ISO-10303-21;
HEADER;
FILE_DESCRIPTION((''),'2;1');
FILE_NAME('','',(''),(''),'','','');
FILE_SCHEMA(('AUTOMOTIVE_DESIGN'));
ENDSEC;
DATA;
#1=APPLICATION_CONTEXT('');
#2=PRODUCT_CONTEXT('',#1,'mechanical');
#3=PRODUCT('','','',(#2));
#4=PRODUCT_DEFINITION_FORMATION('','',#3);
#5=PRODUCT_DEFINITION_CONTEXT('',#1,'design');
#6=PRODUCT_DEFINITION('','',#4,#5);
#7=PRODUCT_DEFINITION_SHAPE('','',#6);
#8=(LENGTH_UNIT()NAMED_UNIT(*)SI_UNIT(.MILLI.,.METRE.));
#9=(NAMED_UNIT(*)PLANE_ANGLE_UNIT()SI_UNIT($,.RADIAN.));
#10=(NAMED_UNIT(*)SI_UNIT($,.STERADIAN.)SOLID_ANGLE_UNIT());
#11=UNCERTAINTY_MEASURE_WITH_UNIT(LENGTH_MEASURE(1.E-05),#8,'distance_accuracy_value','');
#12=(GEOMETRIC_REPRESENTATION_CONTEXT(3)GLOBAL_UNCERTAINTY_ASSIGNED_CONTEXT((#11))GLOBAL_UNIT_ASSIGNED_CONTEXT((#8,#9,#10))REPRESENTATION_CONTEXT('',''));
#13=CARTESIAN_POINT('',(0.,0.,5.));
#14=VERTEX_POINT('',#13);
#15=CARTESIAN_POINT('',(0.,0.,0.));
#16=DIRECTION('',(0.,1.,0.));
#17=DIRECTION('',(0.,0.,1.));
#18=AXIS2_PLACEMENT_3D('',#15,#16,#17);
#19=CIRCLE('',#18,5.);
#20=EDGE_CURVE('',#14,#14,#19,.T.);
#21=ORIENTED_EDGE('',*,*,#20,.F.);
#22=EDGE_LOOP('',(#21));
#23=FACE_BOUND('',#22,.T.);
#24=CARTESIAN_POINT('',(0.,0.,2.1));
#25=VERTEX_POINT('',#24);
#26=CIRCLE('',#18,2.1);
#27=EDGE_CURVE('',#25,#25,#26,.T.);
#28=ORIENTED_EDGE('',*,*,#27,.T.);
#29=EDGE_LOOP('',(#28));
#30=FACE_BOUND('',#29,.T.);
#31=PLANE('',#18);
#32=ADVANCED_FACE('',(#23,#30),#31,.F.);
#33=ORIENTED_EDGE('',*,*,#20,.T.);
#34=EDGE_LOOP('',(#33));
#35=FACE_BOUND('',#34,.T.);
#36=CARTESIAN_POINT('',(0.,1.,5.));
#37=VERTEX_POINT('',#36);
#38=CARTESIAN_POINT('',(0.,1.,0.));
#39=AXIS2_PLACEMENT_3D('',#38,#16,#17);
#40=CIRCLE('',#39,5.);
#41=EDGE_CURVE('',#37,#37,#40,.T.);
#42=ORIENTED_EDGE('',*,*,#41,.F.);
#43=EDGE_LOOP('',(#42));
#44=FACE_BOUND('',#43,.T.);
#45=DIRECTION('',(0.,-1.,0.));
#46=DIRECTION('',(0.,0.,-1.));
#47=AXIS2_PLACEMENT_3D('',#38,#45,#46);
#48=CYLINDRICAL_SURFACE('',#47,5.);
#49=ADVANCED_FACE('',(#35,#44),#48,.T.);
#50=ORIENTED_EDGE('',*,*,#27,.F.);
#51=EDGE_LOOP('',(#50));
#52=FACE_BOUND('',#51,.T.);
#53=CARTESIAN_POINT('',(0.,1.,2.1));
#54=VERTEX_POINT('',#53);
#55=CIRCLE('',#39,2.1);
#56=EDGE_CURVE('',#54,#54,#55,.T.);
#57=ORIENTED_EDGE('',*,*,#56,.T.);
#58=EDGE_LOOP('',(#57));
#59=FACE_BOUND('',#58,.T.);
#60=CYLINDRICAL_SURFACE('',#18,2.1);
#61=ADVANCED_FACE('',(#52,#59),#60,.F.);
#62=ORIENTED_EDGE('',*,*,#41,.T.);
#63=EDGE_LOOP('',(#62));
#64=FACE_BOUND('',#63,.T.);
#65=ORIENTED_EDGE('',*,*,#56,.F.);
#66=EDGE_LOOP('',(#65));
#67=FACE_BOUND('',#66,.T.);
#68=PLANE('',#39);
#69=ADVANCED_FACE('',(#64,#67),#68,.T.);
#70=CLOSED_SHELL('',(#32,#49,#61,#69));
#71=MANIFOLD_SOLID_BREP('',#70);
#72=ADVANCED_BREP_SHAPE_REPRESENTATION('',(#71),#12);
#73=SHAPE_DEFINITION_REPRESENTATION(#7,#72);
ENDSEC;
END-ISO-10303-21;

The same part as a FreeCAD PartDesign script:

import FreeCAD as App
import Part
import Sketcher

doc = App.newDocument("Part")
params = doc.addObject("Spreadsheet::Sheet", "Params")
for row, (alias, value) in enumerate([
    ("sketch1_diameter", "10 mm"),
    ("pad1_length", "1 mm"),
    ("sketch2_diameter", "4.2 mm"),
], start=1):
    params.set(f"A{row}", alias)
    params.set(f"B{row}", "=" + value)
    params.setAlias(f"B{row}", alias)

body = doc.addObject("PartDesign::Body", "Body")

# Sketch on XZ plane
sketch1 = doc.addObject("Sketcher::SketchObject", "Sketch")
body.addObject(sketch1)
sketch1.AttachmentSupport = (doc.XZ_Plane, [""])
sketch1.MapMode = "FlatFace"
sketch1.addGeometry(Part.Circle(App.Vector(0, 0, 0), App.Vector(0, 0, 1), 5), False)
sketch1.addConstraint([
    Sketcher.Constraint("Coincident", 0, 3, -1, 1),
    Sketcher.Constraint("Diameter", 0, 10.0),
])
sketch1.setExpression("Constraints[1]", "Params.sketch1_diameter")
pad1 = doc.addObject("PartDesign::Pad", "Pad")
body.addObject(pad1)
pad1.Profile = sketch1
pad1.setExpression("Length", "Params.pad1_length")
pad1.Reversed = True

# Sketch on XZ plane
sketch2 = doc.addObject("Sketcher::SketchObject", "Sketch001")
body.addObject(sketch2)
sketch2.AttachmentSupport = (doc.XZ_Plane, [""])
sketch2.MapMode = "FlatFace"
sketch2.AttachmentOffset = App.Placement(App.Vector(0, 0, -1), App.Rotation())
sketch2.addGeometry(Part.Circle(App.Vector(0, 0, 0), App.Vector(0, 0, 1), 2.1), False)
sketch2.addConstraint([
    Sketcher.Constraint("Coincident", 0, 3, -1, 1),
    Sketcher.Constraint("Diameter", 0, 4.2),
])
sketch2.setExpression("Constraints[1]", "Params.sketch2_diameter")
pocket1 = doc.addObject("PartDesign::Pocket", "Pocket")
body.addObject(pocket1)
pocket1.Profile = sketch2
pocket1.Type = "ThroughAll"
pocket1.Reversed = True

doc.recompute()
